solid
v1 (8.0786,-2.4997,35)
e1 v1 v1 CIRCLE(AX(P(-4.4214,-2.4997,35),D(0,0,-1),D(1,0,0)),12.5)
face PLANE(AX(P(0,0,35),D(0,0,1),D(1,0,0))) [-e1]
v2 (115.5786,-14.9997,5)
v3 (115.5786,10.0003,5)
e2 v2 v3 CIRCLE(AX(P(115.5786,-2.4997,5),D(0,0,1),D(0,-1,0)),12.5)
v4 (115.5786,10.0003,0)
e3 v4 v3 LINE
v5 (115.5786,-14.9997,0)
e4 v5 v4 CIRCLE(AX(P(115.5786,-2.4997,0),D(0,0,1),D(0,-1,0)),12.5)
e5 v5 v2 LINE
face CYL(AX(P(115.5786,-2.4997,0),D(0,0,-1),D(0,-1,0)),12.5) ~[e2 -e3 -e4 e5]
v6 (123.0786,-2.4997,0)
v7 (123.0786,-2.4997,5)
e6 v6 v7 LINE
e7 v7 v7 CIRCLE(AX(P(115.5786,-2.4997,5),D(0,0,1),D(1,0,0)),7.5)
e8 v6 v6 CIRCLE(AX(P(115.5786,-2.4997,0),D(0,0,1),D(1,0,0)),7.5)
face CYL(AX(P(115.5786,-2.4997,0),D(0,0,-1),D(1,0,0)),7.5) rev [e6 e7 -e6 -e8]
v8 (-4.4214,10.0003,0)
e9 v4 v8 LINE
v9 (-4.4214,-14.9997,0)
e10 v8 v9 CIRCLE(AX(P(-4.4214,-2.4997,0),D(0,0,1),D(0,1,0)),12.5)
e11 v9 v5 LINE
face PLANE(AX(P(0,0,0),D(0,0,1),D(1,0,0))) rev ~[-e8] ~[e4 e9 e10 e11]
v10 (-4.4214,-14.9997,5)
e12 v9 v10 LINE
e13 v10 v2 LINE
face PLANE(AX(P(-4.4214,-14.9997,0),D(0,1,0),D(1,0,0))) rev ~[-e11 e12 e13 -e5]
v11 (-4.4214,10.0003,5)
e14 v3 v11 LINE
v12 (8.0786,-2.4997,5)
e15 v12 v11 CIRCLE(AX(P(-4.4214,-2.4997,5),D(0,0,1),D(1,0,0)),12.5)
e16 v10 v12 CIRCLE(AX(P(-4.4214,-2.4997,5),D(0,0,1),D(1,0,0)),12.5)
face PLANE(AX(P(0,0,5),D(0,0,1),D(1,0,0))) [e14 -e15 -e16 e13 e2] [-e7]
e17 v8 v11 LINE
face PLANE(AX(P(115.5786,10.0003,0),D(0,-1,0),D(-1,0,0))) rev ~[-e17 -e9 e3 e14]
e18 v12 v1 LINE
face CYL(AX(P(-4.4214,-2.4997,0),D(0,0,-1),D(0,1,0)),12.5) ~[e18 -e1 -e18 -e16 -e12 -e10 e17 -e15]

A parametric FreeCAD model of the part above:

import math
import FreeCAD as App
import Part
import Sketcher
from FreeCAD import Vector
Q = App.Units.Quantity

doc = App.newDocument("Part")
body = doc.addObject("PartDesign::Body", "Body")

# Sketch on XY plane
sketch1 = body.newObject("Sketcher::SketchObject", "Sketch")
sketch1.AttachmentSupport = (doc.getObject("XY_Plane"), [""])
sketch1.MapMode = "FlatFace"
sketch1.addGeometry([
    Part.ArcOfCircle(Part.Circle(Vector(-4, -2, 0), Vector(0, 0, 1), 12), math.radians(90), math.radians(270)),  # 0
    Part.LineSegment(Vector(-4, -15, 0), Vector(116, -15, 0)),  # 1
    Part.ArcOfCircle(Part.Circle(Vector(116, -2, 0), Vector(0, 0, 1), 12), math.radians(-90), math.radians(90)),  # 2
    Part.LineSegment(Vector(116, 10, 0), Vector(-4, 10, 0)),  # 3
    Part.Circle(Vector(116, -2, 0), Vector(0, 0, 1), 8),  # 4
], False)
sketch1.addConstraint([
    Sketcher.Constraint("Tangent", 0, 2, 1, 1),
    Sketcher.Constraint("Tangent", 1, 2, 2, 1),
    Sketcher.Constraint("Tangent", 2, 2, 3, 1),
    Sketcher.Constraint("Tangent", 3, 2, 0, 1),
    Sketcher.Constraint("Horizontal", 1),
    Sketcher.Constraint("Horizontal", 3),
    Sketcher.Constraint("Coincident", 4, 3, 2, 3),
    Sketcher.Constraint("Diameter", 4, Q("15 mm")),
    Sketcher.Constraint("Radius", 0, Q("12.5 mm")),
    Sketcher.Constraint("DistanceX", 1, 1, 1, 2, Q("120 mm")),
    Sketcher.Constraint("DistanceY", 0, 2, -1, 1, Q("14.9997 mm")),
    Sketcher.Constraint("DistanceX", 0, 3, -1, 1, Q("4.4214 mm")),
])
pad1 = body.newObject("PartDesign::Pad", "Pad")
pad1.Profile = sketch1
pad1.Length = 5

# Sketch on XY plane
sketch2 = body.newObject("Sketcher::SketchObject", "Sketch001")
sketch2.AttachmentSupport = (doc.getObject("XY_Plane"), [""])
sketch2.MapMode = "FlatFace"
sketch2.AttachmentOffset = App.Placement(Vector(0, 0, 5), App.Rotation())
sketch2.addGeometry(Part.Circle(Vector(-4, -2, 0), Vector(0, 0, 1), 12), False)
sketch2.addConstraint([
    Sketcher.Constraint("Diameter", 0, Q("25 mm")),
    Sketcher.Constraint("DistanceX", 0, 3, -1, 1, Q("4.4214 mm")),
    Sketcher.Constraint("DistanceY", 0, 3, -1, 1, Q("2.4997 mm")),
])
pad2 = body.newObject("PartDesign::Pad", "Pad001")
pad2.Profile = sketch2
pad2.Length = 30

doc.recompute()
